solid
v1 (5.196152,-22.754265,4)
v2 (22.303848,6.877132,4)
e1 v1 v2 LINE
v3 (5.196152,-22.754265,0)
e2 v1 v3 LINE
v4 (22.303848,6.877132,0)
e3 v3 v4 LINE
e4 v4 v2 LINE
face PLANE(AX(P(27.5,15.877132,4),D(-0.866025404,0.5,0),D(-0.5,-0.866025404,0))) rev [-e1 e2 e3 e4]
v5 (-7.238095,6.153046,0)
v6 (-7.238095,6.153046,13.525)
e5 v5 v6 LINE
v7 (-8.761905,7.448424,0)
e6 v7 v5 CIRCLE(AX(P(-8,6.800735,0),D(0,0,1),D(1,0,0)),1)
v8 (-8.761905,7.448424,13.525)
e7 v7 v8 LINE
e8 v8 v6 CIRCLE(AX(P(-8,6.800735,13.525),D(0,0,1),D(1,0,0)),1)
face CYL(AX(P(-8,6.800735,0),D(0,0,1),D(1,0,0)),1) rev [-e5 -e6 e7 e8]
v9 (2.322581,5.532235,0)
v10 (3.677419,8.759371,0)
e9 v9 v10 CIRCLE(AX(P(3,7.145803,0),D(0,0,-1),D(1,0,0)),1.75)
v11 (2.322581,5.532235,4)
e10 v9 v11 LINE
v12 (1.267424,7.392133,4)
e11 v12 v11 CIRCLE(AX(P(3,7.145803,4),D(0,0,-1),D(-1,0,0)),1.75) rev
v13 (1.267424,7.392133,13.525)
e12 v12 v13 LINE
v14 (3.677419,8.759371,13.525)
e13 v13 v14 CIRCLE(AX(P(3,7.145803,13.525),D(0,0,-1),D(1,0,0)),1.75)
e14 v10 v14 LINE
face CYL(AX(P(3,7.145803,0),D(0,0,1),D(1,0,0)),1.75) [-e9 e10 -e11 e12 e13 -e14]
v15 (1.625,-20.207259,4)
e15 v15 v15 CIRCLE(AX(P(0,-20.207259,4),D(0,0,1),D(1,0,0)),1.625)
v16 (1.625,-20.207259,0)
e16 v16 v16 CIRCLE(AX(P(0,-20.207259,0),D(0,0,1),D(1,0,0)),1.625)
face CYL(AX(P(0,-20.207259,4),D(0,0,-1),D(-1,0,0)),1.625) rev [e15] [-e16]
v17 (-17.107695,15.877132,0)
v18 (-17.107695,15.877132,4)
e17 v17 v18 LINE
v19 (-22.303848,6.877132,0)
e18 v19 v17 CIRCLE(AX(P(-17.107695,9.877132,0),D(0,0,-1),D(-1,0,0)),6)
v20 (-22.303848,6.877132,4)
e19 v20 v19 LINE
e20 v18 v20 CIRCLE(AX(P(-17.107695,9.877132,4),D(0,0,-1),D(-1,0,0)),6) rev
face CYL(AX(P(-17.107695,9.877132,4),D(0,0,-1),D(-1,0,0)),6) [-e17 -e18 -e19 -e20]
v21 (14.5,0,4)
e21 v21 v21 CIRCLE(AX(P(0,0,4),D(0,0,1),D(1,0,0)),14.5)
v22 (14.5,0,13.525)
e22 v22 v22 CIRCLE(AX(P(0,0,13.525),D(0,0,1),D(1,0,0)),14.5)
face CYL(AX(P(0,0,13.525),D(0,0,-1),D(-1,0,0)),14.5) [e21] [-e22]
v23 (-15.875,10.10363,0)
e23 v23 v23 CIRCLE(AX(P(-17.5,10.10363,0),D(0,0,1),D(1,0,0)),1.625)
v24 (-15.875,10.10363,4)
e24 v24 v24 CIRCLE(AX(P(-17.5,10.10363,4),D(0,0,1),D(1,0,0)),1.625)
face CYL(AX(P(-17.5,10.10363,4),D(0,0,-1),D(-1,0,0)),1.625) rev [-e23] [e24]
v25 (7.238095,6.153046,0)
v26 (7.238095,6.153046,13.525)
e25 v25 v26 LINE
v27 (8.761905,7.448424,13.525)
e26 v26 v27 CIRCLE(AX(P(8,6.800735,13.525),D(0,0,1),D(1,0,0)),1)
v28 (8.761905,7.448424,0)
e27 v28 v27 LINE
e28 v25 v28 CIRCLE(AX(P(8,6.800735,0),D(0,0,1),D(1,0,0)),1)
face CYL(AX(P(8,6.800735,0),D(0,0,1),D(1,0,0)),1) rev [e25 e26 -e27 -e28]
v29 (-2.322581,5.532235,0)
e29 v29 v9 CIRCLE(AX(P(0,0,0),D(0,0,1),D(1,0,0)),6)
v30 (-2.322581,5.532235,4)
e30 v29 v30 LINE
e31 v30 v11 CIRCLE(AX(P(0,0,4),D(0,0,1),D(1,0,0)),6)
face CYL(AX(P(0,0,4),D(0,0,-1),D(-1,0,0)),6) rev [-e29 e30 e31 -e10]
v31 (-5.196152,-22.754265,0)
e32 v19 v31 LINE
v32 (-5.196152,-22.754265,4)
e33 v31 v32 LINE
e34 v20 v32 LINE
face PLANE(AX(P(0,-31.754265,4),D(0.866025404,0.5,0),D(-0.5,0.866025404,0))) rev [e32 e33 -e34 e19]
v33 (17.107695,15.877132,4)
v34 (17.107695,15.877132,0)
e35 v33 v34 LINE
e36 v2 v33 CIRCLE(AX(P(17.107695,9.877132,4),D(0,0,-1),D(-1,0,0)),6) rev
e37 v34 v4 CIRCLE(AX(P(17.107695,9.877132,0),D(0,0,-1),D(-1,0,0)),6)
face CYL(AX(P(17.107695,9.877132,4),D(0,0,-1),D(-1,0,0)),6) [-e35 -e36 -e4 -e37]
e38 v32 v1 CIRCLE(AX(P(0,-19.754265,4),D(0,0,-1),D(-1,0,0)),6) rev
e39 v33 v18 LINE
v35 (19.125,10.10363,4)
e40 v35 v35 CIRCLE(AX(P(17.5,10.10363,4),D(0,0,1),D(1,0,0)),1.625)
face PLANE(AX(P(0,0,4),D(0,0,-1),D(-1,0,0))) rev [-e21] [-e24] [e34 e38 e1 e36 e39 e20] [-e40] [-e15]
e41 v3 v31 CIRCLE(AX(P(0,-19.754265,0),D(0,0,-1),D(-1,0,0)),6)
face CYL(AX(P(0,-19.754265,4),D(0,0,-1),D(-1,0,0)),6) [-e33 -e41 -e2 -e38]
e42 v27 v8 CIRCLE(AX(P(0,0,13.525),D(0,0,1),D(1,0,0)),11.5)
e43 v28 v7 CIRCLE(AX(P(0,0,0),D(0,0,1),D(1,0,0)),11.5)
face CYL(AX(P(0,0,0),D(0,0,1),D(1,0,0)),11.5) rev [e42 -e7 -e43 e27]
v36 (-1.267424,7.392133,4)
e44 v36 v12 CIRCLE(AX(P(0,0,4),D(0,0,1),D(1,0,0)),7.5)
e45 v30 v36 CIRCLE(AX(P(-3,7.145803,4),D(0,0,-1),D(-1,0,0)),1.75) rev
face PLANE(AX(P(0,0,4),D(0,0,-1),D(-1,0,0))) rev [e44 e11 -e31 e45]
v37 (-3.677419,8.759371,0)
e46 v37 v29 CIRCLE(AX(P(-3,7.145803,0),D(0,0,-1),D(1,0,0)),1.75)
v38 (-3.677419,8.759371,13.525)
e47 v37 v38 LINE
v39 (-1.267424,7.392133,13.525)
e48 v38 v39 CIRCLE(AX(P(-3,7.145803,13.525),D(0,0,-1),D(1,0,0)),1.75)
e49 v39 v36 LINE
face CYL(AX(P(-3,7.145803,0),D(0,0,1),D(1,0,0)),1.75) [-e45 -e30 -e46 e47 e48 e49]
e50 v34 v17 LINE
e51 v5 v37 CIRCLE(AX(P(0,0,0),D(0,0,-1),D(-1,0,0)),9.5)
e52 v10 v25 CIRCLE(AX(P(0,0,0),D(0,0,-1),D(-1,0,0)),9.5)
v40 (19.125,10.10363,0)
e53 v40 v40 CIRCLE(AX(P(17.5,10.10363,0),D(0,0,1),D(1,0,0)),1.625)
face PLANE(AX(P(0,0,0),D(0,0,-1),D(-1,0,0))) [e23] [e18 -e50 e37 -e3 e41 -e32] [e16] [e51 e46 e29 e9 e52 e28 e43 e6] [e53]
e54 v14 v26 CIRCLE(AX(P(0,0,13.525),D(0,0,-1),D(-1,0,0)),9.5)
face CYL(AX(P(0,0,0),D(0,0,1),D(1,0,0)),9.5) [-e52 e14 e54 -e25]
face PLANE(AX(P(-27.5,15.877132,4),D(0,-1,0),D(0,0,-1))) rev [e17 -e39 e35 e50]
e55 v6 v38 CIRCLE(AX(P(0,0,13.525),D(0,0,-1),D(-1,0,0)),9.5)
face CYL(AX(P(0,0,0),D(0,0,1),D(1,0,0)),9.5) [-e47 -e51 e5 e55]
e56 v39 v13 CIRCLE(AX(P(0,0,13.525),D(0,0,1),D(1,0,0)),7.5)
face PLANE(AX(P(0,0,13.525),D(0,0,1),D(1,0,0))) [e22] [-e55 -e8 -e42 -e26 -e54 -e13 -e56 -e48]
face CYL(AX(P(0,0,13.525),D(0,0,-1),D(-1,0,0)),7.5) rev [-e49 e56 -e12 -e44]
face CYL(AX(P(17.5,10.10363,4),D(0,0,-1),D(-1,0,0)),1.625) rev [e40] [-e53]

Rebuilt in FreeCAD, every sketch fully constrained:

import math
import FreeCAD as App
import Part
import Sketcher

V = App.Vector
Q = App.Units.Quantity


def edges_at(feature, points):
    """Names of the edges that pass closest to the given points."""
    edges = feature.Shape.Edges
    near = lambda p: min(range(len(edges)), key=lambda i: edges[i].distToShape(Part.Vertex(*p))[0])
    return sorted({f"Edge{near(p) + 1}" for p in points})

doc = App.newDocument("Part")
body = doc.addObject("PartDesign::Body", "Body")

sketch1 = doc.addObject("Sketcher::SketchObject", "Sketch")
body.addObject(sketch1)
sketch1.AttachmentSupport = (doc.XY_Plane, [""])
sketch1.MapMode = "FlatFace"
sketch1.addGeometry(Part.LineSegment(V(-27.5, 15.877132, 0), V(0, -31.754265, 0)), False)
sketch1.addGeometry(Part.LineSegment(V(0, -31.754265, 0), V(27.5, 15.877132, 0)), False)
sketch1.addGeometry(Part.LineSegment(V(27.5, 15.877132, 0), V(-27.5, 15.877132, 0)), False)
sketch1.addGeometry(Part.Circle(V(0, -20.207259, 0), V(0, 0, 1), 1.625), False)
sketch1.addGeometry(Part.Circle(V(17.5, 10.10363, 0), V(0, 0, 1), 1.625), False)
sketch1.addGeometry(Part.Circle(V(0, 0, 0), V(0, 0, 1), 6), False)
sketch1.addGeometry(Part.Circle(V(-17.5, 10.10363, 0), V(0, 0, 1), 1.625), False)
sketch1.addConstraint(Sketcher.Constraint("Coincident", 0, 2, 1, 1))
sketch1.addConstraint(Sketcher.Constraint("Coincident", 1, 2, 2, 1))
sketch1.addConstraint(Sketcher.Constraint("Coincident", 2, 2, 0, 1))
sketch1.addConstraint(Sketcher.Constraint("Horizontal", 2))
sketch1.addConstraint(Sketcher.Constraint("Coincident", 5, 3, -1, 1))
sketch1.addConstraint(Sketcher.Constraint("Equal", 3, 4))
sketch1.addConstraint(Sketcher.Constraint("Equal", 4, 6))
sketch1.addConstraint(Sketcher.Constraint("Symmetric", 4, 3, 6, 3, -2))
sketch1.addConstraint(Sketcher.Constraint("PointOnObject", 3, 3, -2))
sketch1.addConstraint(Sketcher.Constraint("PointOnObject", 0, 2, -2))
sketch1.addConstraint(Sketcher.Constraint("Equal", 0, 1))
sketch1.addConstraint(Sketcher.Constraint("Diameter", 5, 12.0))
sketch1.addConstraint(Sketcher.Constraint("Diameter", 3, 3.25))
sketch1.addConstraint(Sketcher.Constraint("DistanceX", 2, 2, 2, 1, 55.0))
sketch1.addConstraint(Sketcher.Constraint("Angle", 0, Q("-60 deg")))
sketch1.addConstraint(Sketcher.Constraint("DistanceX", 6, 3, 4, 3, 35.0))
sketch1.addConstraint(Sketcher.Constraint("DistanceY", 3, 3, -1, 1, 20.207259))
sketch1.addConstraint(Sketcher.Constraint("DistanceY", -1, 1, 4, 3, 10.10363))
sketch1.addConstraint(Sketcher.Constraint("DistanceY", 3, 3, 1, 2, 36.084392))
pad1 = doc.addObject("PartDesign::Pad", "Pad")
body.addObject(pad1)
pad1.Profile = sketch1
pad1.Length = 4

sketch2 = doc.addObject("Sketcher::SketchObject", "Sketch001")
body.addObject(sketch2)
sketch2.AttachmentSupport = (doc.XY_Plane, [""])
sketch2.MapMode = "FlatFace"
sketch2.AttachmentOffset = App.Placement(V(0, 0, 4), App.Rotation())
sketch2.addGeometry(Part.Circle(V(0, 0, 0), V(0, 0, 1), 14.5), False)
sketch2.addGeometry(Part.Circle(V(0, 0, 0), V(0, 0, 1), 7.5), False)
sketch2.addConstraint(Sketcher.Constraint("Coincident", 0, 3, -1, 1))
sketch2.addConstraint(Sketcher.Constraint("Coincident", 1, 3, -1, 1))
sketch2.addConstraint(Sketcher.Constraint("Diameter", 0, 29.0))
sketch2.addConstraint(Sketcher.Constraint("Diameter", 1, 15.0))
pad2 = doc.addObject("PartDesign::Pad", "Pad001")
body.addObject(pad2)
pad2.Profile = sketch2
pad2.Length = 9.525
doc.recompute()

fillet = doc.addObject("PartDesign::Fillet", "Fillet")
body.addObject(fillet)
fillet.Base = (pad2, edges_at(pad2, [(0, -31.754, 2), (-27.5, 15.877, 2), (27.5, 15.877, 2)]))
fillet.Radius = 6

sketch3 = doc.addObject("Sketcher::SketchObject", "Sketch002")
body.addObject(sketch3)
sketch3.AttachmentSupport = (doc.XY_Plane, [""])
sketch3.MapMode = "FlatFace"
sketch3.AttachmentOffset = App.Placement(V(0, 0, 13.525), App.Rotation())
sketch3.addGeometry(Part.ArcOfCircle(Part.Circle(V(0, 0, 0), V(0, 0, 1), 9.5), math.radians(40.367594), math.radians(139.632406)), False)
sketch3.addGeometry(Part.ArcOfCircle(Part.Circle(V(8, 6.800735, 0), V(0, 0, 1), 1), math.radians(-139.632406), math.radians(40.367594)), False)
sketch3.addGeometry(Part.ArcOfCircle(Part.Circle(V(0, 0, 0), V(0, 0, 1), 11.5), math.radians(40.367594), math.radians(139.632406)), False)
sketch3.addGeometry(Part.ArcOfCircle(Part.Circle(V(-8, 6.800735, 0), V(0, 0, 1), 1), math.radians(139.632406), math.radians(319.632406)), False)
sketch3.addConstraint(Sketcher.Constraint("Tangent", 0, 1, 1, 1))
sketch3.addConstraint(Sketcher.Constraint("Tangent", 1, 2, 2, 1))
sketch3.addConstraint(Sketcher.Constraint("Tangent", 2, 2, 3, 1))
sketch3.addConstraint(Sketcher.Constraint("Tangent", 3, 2, 0, 2))
sketch3.addConstraint(Sketcher.Constraint("Coincident", 0, 3, -1, 1))
sketch3.addConstraint(Sketcher.Constraint("Coincident", 2, 3, -1, 1))
sketch3.addConstraint(Sketcher.Constraint("Horizontal", 1, 3, 3, 3))
sketch3.addConstraint(Sketcher.Constraint("Radius", 1, 1.0))
sketch3.addConstraint(Sketcher.Constraint("Radius", 0, 9.5))
sketch3.addConstraint(Sketcher.Constraint("DistanceX", -1, 1, 1, 3, 8.0))
pocket1 = doc.addObject("PartDesign::Pocket", "Pocket")
body.addObject(pocket1)
pocket1.Profile = sketch3
pocket1.Type = "ThroughAll"

sketch4 = doc.addObject("Sketcher::SketchObject", "Sketch003")
body.addObject(sketch4)
sketch4.AttachmentSupport = (doc.XY_Plane, [""])
sketch4.MapMode = "FlatFace"
sketch4.AttachmentOffset = App.Placement(V(0, 0, 13.525), App.Rotation())
sketch4.addGeometry(Part.ArcOfCircle(Part.Circle(V(-3, 7.145803, 0), V(0, 0, 1), 1.75), math.radians(-67.226028), math.radians(112.773972)), False)
sketch4.addGeometry(Part.ArcOfCircle(Part.Circle(V(0, 0, 0), V(0, 0, 1), 6), math.radians(67.226028), math.radians(112.773972)), False)
sketch4.addGeometry(Part.ArcOfCircle(Part.Circle(V(3, 7.145803, 0), V(0, 0, 1), 1.75), math.radians(67.226028), math.radians(247.226028)), False)
sketch4.addGeometry(Part.ArcOfCircle(Part.Circle(V(0, 0, 0), V(0, 0, 1), 9.5), math.radians(67.226028), math.radians(112.773972)), False)
sketch4.addConstraint(Sketcher.Constraint("Tangent", 0, 1, 1, 2))
sketch4.addConstraint(Sketcher.Constraint("Tangent", 1, 1, 2, 2))
sketch4.addConstraint(Sketcher.Constraint("Tangent", 2, 1, 3, 1))
sketch4.addConstraint(Sketcher.Constraint("Tangent", 3, 2, 0, 2))
sketch4.addConstraint(Sketcher.Constraint("Coincident", 1, 3, -1, 1))
sketch4.addConstraint(Sketcher.Constraint("Coincident", 3, 3, -1, 1))
sketch4.addConstraint(Sketcher.Constraint("Horizontal", 0, 3, 2, 3))
sketch4.addConstraint(Sketcher.Constraint("Radius", 1, 6.0))
sketch4.addConstraint(Sketcher.Constraint("Radius", 3, 9.5))
sketch4.addConstraint(Sketcher.Constraint("DistanceX", 0, 3, -1, 1, 3.0))
pocket2 = doc.addObject("PartDesign::Pocket", "Pocket001")
body.addObject(pocket2)
pocket2.Profile = sketch4
pocket2.Type = "ThroughAll"

doc.recompute()
